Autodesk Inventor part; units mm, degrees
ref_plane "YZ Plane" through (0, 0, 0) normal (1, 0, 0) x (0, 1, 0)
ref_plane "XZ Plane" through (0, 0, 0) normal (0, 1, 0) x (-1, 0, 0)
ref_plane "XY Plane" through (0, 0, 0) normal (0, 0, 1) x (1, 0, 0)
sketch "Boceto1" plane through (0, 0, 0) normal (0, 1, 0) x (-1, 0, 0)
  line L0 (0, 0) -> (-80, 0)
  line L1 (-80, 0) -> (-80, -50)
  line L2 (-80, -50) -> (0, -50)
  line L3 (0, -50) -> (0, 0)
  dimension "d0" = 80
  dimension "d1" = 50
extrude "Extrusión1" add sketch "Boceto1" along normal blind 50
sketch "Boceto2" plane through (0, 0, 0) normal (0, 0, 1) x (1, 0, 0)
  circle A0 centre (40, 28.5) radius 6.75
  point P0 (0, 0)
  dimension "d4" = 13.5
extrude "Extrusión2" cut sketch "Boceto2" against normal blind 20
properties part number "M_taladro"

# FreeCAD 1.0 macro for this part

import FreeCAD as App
import Part
import Sketcher
from FreeCAD import Vector

doc = App.newDocument("Part")
body = doc.addObject("PartDesign::Body", "Body")

sketch1 = body.newObject("Sketcher::SketchObject", "Sketch")
sketch1.AttachmentSupport = (doc.getObject("XZ_Plane"), [""])
sketch1.MapMode = "FlatFace"
sketch1.addGeometry(Part.LineSegment(Vector(0, -50, 0), Vector(0, 0, 0)), False)
sketch1.addGeometry(Part.LineSegment(Vector(0, 0, 0), Vector(80, 0, 0)), False)
sketch1.addGeometry(Part.LineSegment(Vector(80, 0, 0), Vector(80, -50, 0)), False)
sketch1.addGeometry(Part.LineSegment(Vector(80, -50, 0), Vector(0, -50, 0)), False)
sketch1.addConstraint(Sketcher.Constraint("Coincident", 0, 2, 1, 1))
sketch1.addConstraint(Sketcher.Constraint("Coincident", 1, 2, 2, 1))
sketch1.addConstraint(Sketcher.Constraint("Coincident", 2, 2, 3, 1))
sketch1.addConstraint(Sketcher.Constraint("Coincident", 3, 2, 0, 1))
sketch1.addConstraint(Sketcher.Constraint("Vertical", 0))
sketch1.addConstraint(Sketcher.Constraint("Horizontal", 1))
sketch1.addConstraint(Sketcher.Constraint("Vertical", 2))
sketch1.addConstraint(Sketcher.Constraint("Horizontal", 3))
sketch1.addConstraint(Sketcher.Constraint("Coincident", 0, 2, -1, 1))
sketch1.addConstraint(Sketcher.Constraint("DistanceX", 1, 1, 1, 2, 80.0))
sketch1.addConstraint(Sketcher.Constraint("DistanceY", 0, 1, 0, 2, 50.0))
pad1 = body.newObject("PartDesign::Pad", "Pad")
pad1.Profile = sketch1
pad1.Length = 50
pad1.Reversed = True

sketch2 = body.newObject("Sketcher::SketchObject", "Sketch001")
sketch2.AttachmentSupport = (doc.getObject("XY_Plane"), [""])
sketch2.MapMode = "FlatFace"
sketch2.addGeometry(Part.Circle(Vector(40, 28, 0), Vector(0, 0, 1), 7), False)
sketch2.addConstraint(Sketcher.Constraint("Diameter", 0, 13.5))
sketch2.addConstraint(Sketcher.Constraint("DistanceX", -1, 1, 0, 3, 40.0))
sketch2.addConstraint(Sketcher.Constraint("DistanceY", -1, 1, 0, 3, 28.5))
pocket1 = body.newObject("PartDesign::Pocket", "Pocket")
pocket1.Profile = sketch2
pocket1.Length = 20

doc.recompute()
